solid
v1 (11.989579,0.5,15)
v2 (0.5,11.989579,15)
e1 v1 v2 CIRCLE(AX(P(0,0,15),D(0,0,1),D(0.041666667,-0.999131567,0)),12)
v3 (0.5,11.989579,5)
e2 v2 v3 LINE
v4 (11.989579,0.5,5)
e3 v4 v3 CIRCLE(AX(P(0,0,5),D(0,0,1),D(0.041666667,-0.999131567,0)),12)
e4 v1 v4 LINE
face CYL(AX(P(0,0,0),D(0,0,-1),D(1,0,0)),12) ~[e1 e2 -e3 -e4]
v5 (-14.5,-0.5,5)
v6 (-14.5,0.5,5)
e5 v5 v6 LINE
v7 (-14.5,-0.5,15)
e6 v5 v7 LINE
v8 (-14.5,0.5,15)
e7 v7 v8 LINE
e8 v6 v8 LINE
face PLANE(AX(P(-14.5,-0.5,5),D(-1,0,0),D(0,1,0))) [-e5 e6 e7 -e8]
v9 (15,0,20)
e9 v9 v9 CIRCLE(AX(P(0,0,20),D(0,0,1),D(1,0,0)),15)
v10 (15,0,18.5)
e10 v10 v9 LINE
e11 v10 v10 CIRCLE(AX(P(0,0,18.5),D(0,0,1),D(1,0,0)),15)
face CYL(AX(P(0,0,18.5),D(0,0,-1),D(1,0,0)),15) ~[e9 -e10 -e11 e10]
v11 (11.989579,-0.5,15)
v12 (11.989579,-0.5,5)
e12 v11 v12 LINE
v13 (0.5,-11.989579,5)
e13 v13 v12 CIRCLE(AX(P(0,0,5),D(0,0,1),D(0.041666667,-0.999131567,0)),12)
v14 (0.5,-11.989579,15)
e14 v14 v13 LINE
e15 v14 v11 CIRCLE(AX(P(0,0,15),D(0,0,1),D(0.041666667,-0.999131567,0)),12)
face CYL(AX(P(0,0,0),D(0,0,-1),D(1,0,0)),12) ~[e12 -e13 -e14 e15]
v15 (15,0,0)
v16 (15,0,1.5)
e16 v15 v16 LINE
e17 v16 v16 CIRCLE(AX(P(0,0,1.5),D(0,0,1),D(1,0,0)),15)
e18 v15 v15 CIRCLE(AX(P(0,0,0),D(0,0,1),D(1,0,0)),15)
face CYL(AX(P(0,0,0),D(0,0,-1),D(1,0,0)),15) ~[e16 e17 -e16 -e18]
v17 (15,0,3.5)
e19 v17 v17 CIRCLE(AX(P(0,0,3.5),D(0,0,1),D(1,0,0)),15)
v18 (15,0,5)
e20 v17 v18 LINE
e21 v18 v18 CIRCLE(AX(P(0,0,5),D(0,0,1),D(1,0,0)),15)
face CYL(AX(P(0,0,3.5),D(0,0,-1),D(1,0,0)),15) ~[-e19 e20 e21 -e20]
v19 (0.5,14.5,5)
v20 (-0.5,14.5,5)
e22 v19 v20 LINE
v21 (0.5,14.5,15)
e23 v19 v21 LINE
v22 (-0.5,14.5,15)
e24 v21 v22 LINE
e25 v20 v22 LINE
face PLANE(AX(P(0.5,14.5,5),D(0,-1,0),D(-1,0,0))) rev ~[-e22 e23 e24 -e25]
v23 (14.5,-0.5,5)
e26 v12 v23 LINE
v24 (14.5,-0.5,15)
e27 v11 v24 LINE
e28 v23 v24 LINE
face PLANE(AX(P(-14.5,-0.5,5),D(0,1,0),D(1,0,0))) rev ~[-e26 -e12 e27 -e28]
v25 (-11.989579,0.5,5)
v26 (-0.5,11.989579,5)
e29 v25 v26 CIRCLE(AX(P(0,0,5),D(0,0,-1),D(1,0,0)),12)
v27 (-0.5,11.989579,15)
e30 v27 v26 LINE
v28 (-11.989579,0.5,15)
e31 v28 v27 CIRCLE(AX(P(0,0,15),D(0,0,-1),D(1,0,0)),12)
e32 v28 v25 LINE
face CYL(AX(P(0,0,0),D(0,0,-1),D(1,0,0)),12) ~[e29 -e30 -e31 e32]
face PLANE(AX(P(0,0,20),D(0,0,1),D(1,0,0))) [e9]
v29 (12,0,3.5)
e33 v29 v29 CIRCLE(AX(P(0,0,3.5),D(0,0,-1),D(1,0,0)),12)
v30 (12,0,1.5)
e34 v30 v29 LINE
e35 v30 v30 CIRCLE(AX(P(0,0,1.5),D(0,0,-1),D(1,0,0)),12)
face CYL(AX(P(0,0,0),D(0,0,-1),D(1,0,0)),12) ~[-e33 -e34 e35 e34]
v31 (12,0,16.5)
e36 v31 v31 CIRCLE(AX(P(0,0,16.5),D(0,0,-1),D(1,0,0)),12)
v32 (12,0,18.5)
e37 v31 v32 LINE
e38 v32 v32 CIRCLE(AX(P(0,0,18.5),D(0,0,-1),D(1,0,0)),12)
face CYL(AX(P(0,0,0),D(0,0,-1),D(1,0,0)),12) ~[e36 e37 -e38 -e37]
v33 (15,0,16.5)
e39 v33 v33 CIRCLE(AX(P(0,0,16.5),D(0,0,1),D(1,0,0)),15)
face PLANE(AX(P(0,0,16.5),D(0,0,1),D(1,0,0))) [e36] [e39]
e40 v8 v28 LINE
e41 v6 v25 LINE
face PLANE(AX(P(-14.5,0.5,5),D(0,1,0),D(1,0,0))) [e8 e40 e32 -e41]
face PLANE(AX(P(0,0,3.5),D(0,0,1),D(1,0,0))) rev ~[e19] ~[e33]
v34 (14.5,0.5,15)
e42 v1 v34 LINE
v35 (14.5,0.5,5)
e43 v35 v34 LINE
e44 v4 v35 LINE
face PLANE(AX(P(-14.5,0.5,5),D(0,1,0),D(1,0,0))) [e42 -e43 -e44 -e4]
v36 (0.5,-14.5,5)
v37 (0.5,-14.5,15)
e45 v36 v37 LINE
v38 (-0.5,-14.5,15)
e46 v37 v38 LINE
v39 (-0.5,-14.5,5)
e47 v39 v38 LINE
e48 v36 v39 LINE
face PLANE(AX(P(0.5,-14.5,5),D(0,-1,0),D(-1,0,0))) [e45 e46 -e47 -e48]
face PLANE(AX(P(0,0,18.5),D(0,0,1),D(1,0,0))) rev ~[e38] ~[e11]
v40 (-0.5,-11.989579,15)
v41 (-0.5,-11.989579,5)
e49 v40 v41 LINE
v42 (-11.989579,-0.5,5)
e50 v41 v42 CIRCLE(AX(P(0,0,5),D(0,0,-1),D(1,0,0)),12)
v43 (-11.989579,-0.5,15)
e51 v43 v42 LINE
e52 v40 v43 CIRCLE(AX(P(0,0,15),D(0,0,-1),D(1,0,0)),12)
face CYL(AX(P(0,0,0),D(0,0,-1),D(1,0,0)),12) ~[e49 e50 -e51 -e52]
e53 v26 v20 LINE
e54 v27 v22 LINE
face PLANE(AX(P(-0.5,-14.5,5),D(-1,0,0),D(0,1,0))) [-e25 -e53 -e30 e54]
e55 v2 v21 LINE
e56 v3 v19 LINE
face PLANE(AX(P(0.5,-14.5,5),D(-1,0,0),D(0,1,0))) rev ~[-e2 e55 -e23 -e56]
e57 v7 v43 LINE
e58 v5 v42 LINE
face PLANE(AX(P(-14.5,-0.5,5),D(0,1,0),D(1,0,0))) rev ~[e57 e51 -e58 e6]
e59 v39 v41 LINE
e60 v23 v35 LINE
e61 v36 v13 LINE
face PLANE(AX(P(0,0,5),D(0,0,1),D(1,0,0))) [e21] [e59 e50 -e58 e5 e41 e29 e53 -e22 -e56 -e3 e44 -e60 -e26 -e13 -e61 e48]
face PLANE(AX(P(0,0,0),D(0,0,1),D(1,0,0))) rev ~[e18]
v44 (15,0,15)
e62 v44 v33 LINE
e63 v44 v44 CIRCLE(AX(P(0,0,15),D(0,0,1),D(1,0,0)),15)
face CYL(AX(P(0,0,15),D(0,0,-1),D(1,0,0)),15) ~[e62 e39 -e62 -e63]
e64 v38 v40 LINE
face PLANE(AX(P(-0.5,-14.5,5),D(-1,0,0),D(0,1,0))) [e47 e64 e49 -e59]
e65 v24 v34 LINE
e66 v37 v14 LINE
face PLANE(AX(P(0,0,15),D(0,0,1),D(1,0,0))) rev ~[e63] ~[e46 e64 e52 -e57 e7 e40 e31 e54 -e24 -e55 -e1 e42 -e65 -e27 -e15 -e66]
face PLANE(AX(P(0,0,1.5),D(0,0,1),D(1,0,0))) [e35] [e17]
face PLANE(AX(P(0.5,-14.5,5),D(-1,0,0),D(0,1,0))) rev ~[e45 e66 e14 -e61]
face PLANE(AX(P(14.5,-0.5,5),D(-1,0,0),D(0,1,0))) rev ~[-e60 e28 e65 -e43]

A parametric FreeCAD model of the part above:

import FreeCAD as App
import Part
import Sketcher

V = App.Vector


def add_polygon(sketch, points):
    """Adds a closed chain of lines whose ends are joined by coincident constraints."""
    first, n = sketch.GeometryCount, len(points)
    for a, b in zip(points, points[1:] + points[:1]):
        sketch.addGeometry(Part.LineSegment(App.Vector(*a, 0), App.Vector(*b, 0)), False)
    for i in range(n):
        sketch.addConstraint(Sketcher.Constraint("Coincident", first + i, 2, first + (i + 1) % n, 1))

doc = App.newDocument("Part")
body = doc.addObject("PartDesign::Body", "Body")

# Sketch on XY plane
sketch1 = doc.addObject("Sketcher::SketchObject", "Sketch")
body.addObject(sketch1)
sketch1.AttachmentSupport = (doc.XY_Plane, [""])
sketch1.MapMode = "FlatFace"
sketch1.addGeometry(Part.Circle(V(0, 0, 0), V(0, 0, 1), 12), False)
sketch1.addConstraint(Sketcher.Constraint("Coincident", 0, 3, -1, 1))
sketch1.addConstraint(Sketcher.Constraint("Diameter", 0, 24.0))
pad1 = doc.addObject("PartDesign::Pad", "Pad")
body.addObject(pad1)
pad1.Profile = sketch1
pad1.Length = 20
body2 = doc.addObject("PartDesign::Body", "Body001")

# Sketch on XY plane
sketch2 = doc.addObject("Sketcher::SketchObject", "Sketch001")
body2.addObject(sketch2)
sketch2.AttachmentSupport = (doc.getObject("XY_Plane001"), [""])
sketch2.MapMode = "FlatFace"
sketch2.addGeometry(Part.Circle(V(0, 0, 0), V(0, 0, 1), 15), False)
sketch2.addConstraint(Sketcher.Constraint("Coincident", 0, 3, -1, 1))
sketch2.addConstraint(Sketcher.Constraint("Diameter", 0, 30.0))
pad2 = doc.addObject("PartDesign::Pad", "Pad001")
body2.addObject(pad2)
pad2.Profile = sketch2
pad2.Length = 1.5
body3 = doc.addObject("PartDesign::Body", "Body002")

# Sketch on XY plane
sketch3 = doc.addObject("Sketcher::SketchObject", "Sketch002")
body3.addObject(sketch3)
sketch3.AttachmentSupport = (doc.getObject("XY_Plane002"), [""])
sketch3.MapMode = "FlatFace"
sketch3.AttachmentOffset = App.Placement(V(0, 0, 3.5), App.Rotation())
sketch3.addGeometry(Part.Circle(V(0, 0, 0), V(0, 0, 1), 15), False)
sketch3.addConstraint(Sketcher.Constraint("Coincident", 0, 3, -1, 1))
sketch3.addConstraint(Sketcher.Constraint("Diameter", 0, 30.0))
pad3 = doc.addObject("PartDesign::Pad", "Pad002")
body3.addObject(pad3)
pad3.Profile = sketch3
pad3.Length = 1.5
body4 = doc.addObject("PartDesign::Body", "Body003")

# Sketch on XY plane
sketch4 = doc.addObject("Sketcher::SketchObject", "Sketch003")
body4.addObject(sketch4)
sketch4.AttachmentSupport = (doc.getObject("XY_Plane003"), [""])
sketch4.MapMode = "FlatFace"
sketch4.AttachmentOffset = App.Placement(V(0, 0, 18.5), App.Rotation())
sketch4.addGeometry(Part.Circle(V(0, 0, 0), V(0, 0, 1), 15), False)
sketch4.addConstraint(Sketcher.Constraint("Coincident", 0, 3, -1, 1))
sketch4.addConstraint(Sketcher.Constraint("Diameter", 0, 30.0))
pad4 = doc.addObject("PartDesign::Pad", "Pad003")
body4.addObject(pad4)
pad4.Profile = sketch4
pad4.Length = 1.5
body5 = doc.addObject("PartDesign::Body", "Body004")

# Sketch on XY plane
sketch5 = doc.addObject("Sketcher::SketchObject", "Sketch004")
body5.addObject(sketch5)
sketch5.AttachmentSupport = (doc.getObject("XY_Plane004"), [""])
sketch5.MapMode = "FlatFace"
sketch5.AttachmentOffset = App.Placement(V(0, 0, 15), App.Rotation())
sketch5.addGeometry(Part.Circle(V(0, 0, 0), V(0, 0, 1), 15), False)
sketch5.addConstraint(Sketcher.Constraint("Coincident", 0, 3, -1, 1))
sketch5.addConstraint(Sketcher.Constraint("Diameter", 0, 30.0))
pad5 = doc.addObject("PartDesign::Pad", "Pad004")
body5.addObject(pad5)
pad5.Profile = sketch5
pad5.Length = 1.5
body6 = doc.addObject("PartDesign::Body", "Body005")

# Sketch on XY plane
sketch6 = doc.addObject("Sketcher::SketchObject", "Sketch005")
body6.addObject(sketch6)
sketch6.AttachmentSupport = (doc.getObject("XY_Plane005"), [""])
sketch6.MapMode = "FlatFace"
sketch6.AttachmentOffset = App.Placement(V(0, 0, 5), App.Rotation())
add_polygon(sketch6, [(-14.5, 0.5), (-14.5, -0.5), (14.5, -0.5), (14.5, 0.5)])  # lines 0-3
sketch6.addConstraint(Sketcher.Constraint("Vertical", 0))
sketch6.addConstraint(Sketcher.Constraint("Horizontal", 1))
sketch6.addConstraint(Sketcher.Constraint("Vertical", 2))
sketch6.addConstraint(Sketcher.Constraint("Horizontal", 3))
sketch6.addConstraint(Sketcher.Constraint("Symmetric", 0, 2, 2, 2, -1, 1))
sketch6.addConstraint(Sketcher.Constraint("DistanceX", 1, 1, 1, 2, 29.0))
sketch6.addConstraint(Sketcher.Constraint("DistanceY", 0, 2, 0, 1, 1.0))
pad6 = doc.addObject("PartDesign::Pad", "Pad005")
body6.addObject(pad6)
pad6.Profile = sketch6
pad6.Length = 10
body7 = doc.addObject("PartDesign::Body", "Body006")

# Sketch on XY plane
sketch7 = doc.addObject("Sketcher::SketchObject", "Sketch006")
body7.addObject(sketch7)
sketch7.AttachmentSupport = (doc.getObject("XY_Plane006"), [""])
sketch7.MapMode = "FlatFace"
sketch7.AttachmentOffset = App.Placement(V(0, 0, 5), App.Rotation())
add_polygon(sketch7, [(-14.5, 0.5), (-14.5, -0.5), (14.5, -0.5), (14.5, 0.5)])  # lines 0-3
sketch7.addConstraint(Sketcher.Constraint("Vertical", 0))
sketch7.addConstraint(Sketcher.Constraint("Horizontal", 1))
sketch7.addConstraint(Sketcher.Constraint("Vertical", 2))
sketch7.addConstraint(Sketcher.Constraint("Horizontal", 3))
sketch7.addConstraint(Sketcher.Constraint("Symmetric", 0, 2, 2, 2, -1, 1))
sketch7.addConstraint(Sketcher.Constraint("DistanceX", 1, 1, 1, 2, 29.0))
sketch7.addConstraint(Sketcher.Constraint("DistanceY", 0, 2, 0, 1, 1.0))
pad7 = doc.addObject("PartDesign::Pad", "Pad006")
body7.addObject(pad7)
pad7.Profile = sketch7
pad7.Length = 10
body8 = doc.addObject("PartDesign::Body", "Body007")
doc.recompute()

body7.Placement = App.Placement(V(0, 0, 0), App.Rotation(V(0, 0, 1), 90))
boolean = doc.addObject("PartDesign::Boolean", "Boolean")
body8.addObject(boolean)
boolean.Type = "Fuse"
boolean.addObjects([body7])
doc.recompute()

boolean2 = doc.addObject("PartDesign::Boolean", "Boolean001")
body8.addObject(boolean2)
boolean2.Type = "Fuse"
boolean2.addObjects([body])
doc.recompute()

boolean3 = doc.addObject("PartDesign::Boolean", "Boolean002")
body8.addObject(boolean3)
boolean3.Type = "Fuse"
boolean3.addObjects([body2])
doc.recompute()

boolean4 = doc.addObject("PartDesign::Boolean", "Boolean003")
body8.addObject(boolean4)
boolean4.Type = "Fuse"
boolean4.addObjects([body3])
doc.recompute()

boolean5 = doc.addObject("PartDesign::Boolean", "Boolean004")
body8.addObject(boolean5)
boolean5.Type = "Fuse"
boolean5.addObjects([body4])
doc.recompute()

boolean6 = doc.addObject("PartDesign::Boolean", "Boolean005")
body8.addObject(boolean6)
boolean6.Type = "Fuse"
boolean6.addObjects([body5])
doc.recompute()

boolean7 = doc.addObject("PartDesign::Boolean", "Boolean006")
body8.addObject(boolean7)
boolean7.Type = "Fuse"
boolean7.addObjects([body6])

doc.recompute()
